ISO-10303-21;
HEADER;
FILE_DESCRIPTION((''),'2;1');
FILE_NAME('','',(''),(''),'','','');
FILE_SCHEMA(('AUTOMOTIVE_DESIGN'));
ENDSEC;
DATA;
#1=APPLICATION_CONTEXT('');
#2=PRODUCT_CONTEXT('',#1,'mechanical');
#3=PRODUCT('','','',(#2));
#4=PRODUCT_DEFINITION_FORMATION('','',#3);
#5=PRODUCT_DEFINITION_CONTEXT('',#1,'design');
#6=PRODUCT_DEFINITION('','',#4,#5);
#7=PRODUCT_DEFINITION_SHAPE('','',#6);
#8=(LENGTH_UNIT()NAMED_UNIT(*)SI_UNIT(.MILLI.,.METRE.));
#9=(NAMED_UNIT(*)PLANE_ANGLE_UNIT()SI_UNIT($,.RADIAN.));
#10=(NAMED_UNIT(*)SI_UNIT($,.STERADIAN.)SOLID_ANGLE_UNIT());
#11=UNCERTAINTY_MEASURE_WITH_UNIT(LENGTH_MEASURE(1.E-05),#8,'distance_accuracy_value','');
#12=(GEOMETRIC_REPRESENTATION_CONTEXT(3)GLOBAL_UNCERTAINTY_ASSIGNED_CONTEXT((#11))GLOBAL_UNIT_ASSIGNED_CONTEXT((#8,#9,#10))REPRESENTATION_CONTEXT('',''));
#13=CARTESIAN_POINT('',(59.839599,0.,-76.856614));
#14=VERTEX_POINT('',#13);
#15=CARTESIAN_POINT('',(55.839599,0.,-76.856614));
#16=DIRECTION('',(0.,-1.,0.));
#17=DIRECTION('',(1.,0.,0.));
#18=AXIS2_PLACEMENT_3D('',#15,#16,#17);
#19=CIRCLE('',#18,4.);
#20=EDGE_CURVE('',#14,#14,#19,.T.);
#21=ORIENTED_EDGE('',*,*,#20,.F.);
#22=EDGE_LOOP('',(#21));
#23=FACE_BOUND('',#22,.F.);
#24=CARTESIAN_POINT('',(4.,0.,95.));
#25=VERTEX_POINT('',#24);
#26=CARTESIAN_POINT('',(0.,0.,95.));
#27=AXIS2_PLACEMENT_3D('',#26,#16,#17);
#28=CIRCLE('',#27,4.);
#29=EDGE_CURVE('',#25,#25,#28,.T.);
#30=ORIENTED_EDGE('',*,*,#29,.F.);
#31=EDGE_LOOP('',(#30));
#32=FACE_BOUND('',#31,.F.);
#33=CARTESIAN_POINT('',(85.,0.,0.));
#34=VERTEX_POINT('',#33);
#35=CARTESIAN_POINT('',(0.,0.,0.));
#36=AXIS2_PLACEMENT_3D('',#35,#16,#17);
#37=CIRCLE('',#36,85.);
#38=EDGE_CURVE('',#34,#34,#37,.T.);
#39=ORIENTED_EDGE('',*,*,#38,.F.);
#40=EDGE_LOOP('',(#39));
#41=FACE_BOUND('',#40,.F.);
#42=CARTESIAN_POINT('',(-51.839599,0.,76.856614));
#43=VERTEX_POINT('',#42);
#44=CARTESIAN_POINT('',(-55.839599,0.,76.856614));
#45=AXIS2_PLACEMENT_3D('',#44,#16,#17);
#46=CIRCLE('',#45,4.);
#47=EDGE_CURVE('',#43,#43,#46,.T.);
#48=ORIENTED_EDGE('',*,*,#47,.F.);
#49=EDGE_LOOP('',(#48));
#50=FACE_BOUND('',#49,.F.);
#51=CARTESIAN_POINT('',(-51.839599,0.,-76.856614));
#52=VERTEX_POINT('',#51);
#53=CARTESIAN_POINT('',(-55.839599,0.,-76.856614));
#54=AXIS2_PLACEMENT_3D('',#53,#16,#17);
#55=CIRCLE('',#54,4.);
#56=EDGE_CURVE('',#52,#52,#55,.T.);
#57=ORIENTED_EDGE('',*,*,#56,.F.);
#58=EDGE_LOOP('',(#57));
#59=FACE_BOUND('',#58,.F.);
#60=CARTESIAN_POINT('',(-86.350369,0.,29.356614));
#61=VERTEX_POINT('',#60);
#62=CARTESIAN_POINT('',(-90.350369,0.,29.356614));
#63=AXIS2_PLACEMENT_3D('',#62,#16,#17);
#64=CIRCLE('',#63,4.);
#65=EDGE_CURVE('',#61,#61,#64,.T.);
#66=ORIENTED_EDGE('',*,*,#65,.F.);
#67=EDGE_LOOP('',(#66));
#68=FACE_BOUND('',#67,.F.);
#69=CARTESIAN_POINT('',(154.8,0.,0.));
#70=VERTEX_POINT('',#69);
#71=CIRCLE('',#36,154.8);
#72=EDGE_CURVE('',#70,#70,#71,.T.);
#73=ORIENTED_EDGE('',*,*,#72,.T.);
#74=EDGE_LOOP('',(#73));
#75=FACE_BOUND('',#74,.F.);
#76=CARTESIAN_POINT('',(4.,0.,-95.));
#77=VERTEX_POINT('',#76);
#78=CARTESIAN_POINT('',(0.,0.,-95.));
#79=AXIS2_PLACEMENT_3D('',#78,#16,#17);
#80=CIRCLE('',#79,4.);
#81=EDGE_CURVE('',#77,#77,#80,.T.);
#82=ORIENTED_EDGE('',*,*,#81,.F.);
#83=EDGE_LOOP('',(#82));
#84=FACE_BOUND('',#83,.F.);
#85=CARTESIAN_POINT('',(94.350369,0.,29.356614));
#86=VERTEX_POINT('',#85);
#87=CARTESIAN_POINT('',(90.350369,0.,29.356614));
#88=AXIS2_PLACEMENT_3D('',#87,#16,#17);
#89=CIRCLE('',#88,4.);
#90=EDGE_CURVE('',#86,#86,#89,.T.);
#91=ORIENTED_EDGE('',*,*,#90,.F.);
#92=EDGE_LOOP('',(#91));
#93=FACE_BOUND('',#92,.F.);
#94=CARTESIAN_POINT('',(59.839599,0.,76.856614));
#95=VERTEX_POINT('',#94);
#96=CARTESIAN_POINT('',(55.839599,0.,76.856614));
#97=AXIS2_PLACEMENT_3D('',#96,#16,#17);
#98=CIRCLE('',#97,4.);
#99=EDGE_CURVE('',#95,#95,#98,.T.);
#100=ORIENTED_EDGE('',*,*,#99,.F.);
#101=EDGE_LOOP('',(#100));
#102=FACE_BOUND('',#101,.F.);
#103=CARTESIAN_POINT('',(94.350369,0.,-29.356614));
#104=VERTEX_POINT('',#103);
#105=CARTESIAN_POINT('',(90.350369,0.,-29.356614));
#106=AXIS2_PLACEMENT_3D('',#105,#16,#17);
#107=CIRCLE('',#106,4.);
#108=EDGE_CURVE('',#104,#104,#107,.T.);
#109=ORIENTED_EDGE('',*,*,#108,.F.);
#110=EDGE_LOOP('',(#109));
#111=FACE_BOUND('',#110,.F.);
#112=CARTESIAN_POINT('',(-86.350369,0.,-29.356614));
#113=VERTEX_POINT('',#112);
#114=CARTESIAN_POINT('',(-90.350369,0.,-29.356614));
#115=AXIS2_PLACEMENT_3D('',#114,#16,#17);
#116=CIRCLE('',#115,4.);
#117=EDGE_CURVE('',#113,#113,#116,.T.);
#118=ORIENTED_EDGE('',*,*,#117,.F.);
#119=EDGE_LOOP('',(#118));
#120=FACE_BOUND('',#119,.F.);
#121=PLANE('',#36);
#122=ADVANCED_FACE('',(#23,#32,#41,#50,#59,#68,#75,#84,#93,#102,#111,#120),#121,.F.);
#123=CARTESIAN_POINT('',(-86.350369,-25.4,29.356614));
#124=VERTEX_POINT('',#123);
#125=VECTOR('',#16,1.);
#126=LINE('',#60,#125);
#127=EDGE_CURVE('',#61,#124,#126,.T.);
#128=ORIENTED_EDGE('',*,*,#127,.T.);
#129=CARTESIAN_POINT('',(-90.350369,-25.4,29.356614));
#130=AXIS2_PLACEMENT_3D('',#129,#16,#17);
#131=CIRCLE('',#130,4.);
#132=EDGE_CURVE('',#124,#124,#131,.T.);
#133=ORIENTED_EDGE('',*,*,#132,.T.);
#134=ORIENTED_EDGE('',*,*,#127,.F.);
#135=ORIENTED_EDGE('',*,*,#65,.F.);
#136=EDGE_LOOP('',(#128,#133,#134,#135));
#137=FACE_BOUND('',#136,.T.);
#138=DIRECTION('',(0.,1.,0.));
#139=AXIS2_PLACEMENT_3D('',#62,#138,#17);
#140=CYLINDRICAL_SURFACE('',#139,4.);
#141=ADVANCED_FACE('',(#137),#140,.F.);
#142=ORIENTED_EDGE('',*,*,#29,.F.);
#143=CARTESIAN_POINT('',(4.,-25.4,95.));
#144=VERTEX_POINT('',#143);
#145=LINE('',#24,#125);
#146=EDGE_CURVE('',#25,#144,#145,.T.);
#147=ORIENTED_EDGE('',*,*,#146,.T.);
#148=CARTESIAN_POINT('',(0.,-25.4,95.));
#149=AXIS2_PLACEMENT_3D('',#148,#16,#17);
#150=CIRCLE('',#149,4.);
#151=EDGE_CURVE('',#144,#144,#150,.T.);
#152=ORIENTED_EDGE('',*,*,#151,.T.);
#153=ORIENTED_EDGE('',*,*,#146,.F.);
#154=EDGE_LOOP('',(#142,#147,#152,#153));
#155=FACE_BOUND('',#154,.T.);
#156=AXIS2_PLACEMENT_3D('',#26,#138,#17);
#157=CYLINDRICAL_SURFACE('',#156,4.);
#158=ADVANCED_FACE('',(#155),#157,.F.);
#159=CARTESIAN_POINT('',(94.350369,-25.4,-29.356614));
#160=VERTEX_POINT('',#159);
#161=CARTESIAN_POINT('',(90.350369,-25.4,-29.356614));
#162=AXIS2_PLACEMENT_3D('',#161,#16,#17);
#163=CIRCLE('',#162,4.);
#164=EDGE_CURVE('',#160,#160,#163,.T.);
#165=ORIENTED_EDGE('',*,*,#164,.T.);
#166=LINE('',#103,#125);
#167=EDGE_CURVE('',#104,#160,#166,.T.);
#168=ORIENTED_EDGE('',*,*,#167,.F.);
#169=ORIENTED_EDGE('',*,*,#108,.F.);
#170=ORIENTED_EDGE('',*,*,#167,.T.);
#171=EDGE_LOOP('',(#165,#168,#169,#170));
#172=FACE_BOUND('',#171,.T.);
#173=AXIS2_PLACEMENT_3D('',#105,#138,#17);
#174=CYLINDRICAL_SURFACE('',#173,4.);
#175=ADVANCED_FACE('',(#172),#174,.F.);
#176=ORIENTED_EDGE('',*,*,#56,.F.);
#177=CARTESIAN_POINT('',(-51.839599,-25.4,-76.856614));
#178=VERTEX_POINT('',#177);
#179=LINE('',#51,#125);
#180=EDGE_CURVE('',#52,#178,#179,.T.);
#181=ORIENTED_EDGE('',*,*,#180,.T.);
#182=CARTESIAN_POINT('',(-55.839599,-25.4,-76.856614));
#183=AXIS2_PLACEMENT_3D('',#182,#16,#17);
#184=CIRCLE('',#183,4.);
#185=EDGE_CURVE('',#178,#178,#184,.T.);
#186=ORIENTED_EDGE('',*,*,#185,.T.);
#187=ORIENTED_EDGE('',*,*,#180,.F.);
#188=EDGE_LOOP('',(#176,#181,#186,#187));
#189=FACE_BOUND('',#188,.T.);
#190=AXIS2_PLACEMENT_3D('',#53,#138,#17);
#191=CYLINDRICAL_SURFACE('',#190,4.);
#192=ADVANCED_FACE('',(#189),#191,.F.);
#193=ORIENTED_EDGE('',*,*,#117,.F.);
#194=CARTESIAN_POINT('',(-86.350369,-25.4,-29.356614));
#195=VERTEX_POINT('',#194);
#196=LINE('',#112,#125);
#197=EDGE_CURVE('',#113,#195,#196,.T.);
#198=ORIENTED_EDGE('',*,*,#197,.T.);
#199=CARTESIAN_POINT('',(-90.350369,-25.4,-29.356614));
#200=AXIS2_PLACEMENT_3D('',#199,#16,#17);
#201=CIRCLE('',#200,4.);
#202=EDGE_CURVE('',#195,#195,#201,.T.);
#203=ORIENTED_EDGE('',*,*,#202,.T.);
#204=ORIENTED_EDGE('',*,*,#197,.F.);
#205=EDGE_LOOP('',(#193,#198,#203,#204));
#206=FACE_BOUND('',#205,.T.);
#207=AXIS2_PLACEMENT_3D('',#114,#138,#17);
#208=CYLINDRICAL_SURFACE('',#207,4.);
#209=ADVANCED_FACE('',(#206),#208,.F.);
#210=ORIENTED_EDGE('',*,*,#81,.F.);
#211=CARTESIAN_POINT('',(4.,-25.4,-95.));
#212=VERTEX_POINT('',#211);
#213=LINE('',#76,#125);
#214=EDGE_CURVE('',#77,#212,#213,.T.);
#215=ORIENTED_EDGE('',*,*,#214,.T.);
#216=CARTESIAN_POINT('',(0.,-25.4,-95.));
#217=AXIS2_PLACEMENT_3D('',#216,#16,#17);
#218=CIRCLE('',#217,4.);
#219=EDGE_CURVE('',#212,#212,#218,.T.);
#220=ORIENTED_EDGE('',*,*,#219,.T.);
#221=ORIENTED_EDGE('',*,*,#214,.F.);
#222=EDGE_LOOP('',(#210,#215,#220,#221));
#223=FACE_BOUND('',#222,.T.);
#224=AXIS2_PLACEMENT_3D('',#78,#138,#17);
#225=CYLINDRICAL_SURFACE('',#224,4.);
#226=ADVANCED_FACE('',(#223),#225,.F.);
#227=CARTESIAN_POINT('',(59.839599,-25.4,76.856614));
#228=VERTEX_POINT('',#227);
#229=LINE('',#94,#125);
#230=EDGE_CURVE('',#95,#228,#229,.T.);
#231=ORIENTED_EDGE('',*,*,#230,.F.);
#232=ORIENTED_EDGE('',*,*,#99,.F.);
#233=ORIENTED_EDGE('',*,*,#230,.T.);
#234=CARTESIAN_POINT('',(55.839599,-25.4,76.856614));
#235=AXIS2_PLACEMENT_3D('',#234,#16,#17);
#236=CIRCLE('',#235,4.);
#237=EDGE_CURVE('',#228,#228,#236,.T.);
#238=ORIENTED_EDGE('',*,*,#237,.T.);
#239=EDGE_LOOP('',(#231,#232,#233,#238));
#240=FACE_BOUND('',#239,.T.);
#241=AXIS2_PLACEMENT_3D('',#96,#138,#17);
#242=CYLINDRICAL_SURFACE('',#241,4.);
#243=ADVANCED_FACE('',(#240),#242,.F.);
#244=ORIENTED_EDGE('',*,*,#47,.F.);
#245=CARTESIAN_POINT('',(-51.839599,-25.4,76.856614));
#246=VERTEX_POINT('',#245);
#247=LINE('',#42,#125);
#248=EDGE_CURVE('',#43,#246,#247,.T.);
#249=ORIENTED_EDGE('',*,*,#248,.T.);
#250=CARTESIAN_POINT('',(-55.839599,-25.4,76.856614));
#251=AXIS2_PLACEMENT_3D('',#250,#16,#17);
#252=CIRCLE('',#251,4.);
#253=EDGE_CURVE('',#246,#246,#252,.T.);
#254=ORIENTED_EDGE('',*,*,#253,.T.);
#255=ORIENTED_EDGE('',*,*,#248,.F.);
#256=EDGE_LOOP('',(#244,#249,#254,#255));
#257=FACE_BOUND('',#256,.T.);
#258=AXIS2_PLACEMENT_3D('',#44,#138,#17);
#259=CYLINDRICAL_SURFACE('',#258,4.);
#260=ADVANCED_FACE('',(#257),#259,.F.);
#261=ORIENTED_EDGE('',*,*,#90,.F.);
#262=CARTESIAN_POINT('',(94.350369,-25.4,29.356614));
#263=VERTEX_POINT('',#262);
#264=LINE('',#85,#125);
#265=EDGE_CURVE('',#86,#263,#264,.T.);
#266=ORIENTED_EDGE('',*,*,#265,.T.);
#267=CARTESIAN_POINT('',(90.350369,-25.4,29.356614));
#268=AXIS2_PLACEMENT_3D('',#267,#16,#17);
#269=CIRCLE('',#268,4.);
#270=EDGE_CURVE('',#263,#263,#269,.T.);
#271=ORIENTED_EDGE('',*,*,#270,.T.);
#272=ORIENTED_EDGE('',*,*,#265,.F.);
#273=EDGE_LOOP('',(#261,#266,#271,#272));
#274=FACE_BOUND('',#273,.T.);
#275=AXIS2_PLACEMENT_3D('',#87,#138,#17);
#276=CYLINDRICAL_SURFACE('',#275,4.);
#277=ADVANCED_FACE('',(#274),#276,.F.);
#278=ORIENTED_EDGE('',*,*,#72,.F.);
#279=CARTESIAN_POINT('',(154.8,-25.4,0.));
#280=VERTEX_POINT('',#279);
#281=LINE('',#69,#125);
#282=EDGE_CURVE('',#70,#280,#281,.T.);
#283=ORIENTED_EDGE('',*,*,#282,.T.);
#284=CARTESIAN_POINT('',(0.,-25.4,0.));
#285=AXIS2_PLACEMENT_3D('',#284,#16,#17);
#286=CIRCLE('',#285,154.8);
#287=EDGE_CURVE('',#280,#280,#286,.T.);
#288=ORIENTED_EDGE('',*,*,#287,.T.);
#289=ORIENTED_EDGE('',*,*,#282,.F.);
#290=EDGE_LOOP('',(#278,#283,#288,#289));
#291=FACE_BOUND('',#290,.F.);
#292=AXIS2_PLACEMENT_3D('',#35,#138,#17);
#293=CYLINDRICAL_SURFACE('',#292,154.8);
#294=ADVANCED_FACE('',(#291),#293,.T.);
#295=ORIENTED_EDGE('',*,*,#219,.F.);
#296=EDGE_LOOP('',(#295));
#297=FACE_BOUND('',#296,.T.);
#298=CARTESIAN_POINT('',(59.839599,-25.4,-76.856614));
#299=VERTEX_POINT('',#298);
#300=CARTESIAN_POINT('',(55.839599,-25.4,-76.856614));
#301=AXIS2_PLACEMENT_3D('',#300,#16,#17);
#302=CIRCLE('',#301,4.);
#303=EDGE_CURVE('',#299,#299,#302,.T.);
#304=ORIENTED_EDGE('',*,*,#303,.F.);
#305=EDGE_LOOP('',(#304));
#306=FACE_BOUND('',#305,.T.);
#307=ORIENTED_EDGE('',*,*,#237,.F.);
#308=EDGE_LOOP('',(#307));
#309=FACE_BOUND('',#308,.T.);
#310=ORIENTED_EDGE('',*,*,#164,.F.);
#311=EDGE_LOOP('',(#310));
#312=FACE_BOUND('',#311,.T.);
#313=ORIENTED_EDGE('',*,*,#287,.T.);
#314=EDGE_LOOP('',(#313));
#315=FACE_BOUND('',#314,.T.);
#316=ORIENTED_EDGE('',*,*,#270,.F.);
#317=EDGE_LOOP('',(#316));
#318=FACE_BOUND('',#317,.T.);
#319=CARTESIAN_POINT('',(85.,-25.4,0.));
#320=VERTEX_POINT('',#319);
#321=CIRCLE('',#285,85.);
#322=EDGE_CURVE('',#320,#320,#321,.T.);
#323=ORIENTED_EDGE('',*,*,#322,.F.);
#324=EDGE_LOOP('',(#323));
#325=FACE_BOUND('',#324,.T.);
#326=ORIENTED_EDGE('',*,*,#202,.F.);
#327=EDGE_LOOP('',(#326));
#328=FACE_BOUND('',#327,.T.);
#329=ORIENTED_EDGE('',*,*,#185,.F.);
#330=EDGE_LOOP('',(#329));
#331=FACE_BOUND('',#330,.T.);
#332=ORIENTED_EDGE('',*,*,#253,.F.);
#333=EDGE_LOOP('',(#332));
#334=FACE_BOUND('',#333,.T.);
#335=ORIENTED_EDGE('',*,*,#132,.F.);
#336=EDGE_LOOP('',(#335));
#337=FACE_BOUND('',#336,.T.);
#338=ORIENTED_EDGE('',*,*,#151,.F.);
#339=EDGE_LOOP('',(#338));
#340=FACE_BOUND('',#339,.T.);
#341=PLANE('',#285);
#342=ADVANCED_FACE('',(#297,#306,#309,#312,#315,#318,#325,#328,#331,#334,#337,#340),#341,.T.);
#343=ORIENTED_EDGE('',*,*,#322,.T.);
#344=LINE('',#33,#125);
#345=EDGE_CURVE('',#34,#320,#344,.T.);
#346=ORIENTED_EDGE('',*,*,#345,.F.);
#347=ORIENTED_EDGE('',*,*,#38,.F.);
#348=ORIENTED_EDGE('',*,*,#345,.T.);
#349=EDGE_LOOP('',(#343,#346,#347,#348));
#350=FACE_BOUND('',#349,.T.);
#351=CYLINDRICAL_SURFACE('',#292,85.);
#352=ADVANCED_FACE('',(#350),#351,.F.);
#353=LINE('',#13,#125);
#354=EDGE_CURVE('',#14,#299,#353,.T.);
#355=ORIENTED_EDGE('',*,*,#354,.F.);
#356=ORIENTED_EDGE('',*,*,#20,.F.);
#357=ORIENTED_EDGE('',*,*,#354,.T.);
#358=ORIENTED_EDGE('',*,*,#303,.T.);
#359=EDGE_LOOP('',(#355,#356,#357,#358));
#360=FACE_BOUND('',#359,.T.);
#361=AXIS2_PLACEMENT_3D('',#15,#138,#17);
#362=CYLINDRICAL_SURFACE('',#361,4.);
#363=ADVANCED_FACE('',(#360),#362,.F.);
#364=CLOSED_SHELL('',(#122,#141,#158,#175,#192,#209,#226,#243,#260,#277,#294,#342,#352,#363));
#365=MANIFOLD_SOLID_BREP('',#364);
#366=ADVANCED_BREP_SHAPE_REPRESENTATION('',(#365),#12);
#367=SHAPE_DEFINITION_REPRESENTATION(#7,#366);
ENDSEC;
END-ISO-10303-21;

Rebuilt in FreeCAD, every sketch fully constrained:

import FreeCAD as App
import Part
import Sketcher
from FreeCAD import Vector

doc = App.newDocument("Part")
body = doc.addObject("PartDesign::Body", "Body")

# Sketch on XZ plane
sketch1 = body.newObject("Sketcher::SketchObject", "Sketch")
sketch1.AttachmentSupport = (doc.getObject("XZ_Plane"), [""])
sketch1.MapMode = "FlatFace"
sketch1.addGeometry([
    Part.Circle(Vector(0, 0, 0), Vector(0, 0, 1), 154.8),  # 0
    Part.Circle(Vector(-55.8, -76.9, 0), Vector(0, 0, 1), 4),  # 1
    Part.Circle(Vector(-90.4, -29.4, 0), Vector(0, 0, 1), 4),  # 2
    Part.Circle(Vector(0, -95, 0), Vector(0, 0, 1), 4),  # 3
    Part.Circle(Vector(55.8, -76.9, 0), Vector(0, 0, 1), 4),  # 4
    Part.Circle(Vector(90.4, -29.4, 0), Vector(0, 0, 1), 4),  # 5
    Part.Circle(Vector(-90.4, 29.4, 0), Vector(0, 0, 1), 4),  # 6
    Part.Circle(Vector(-55.8, 76.9, 0), Vector(0, 0, 1), 4),  # 7
    Part.Circle(Vector(0, 0, 0), Vector(0, 0, 1), 85),  # 8
    Part.Circle(Vector(90.4, 29.4, 0), Vector(0, 0, 1), 4),  # 9
    Part.Circle(Vector(0, 95, 0), Vector(0, 0, 1), 4),  # 10
    Part.Circle(Vector(55.8, 76.9, 0), Vector(0, 0, 1), 4),  # 11
], False)
sketch1.addConstraint([
    Sketcher.Constraint("Coincident", 0, 3, -1, 1),
    Sketcher.Constraint("Coincident", 8, 3, -1, 1),
    Sketcher.Constraint("Equal", 1, 2),
    Sketcher.Constraint("Equal", 2, 3),
    Sketcher.Constraint("Equal", 3, 4),
    Sketcher.Constraint("Equal", 4, 5),
    Sketcher.Constraint("Equal", 5, 6),
    Sketcher.Constraint("Equal", 6, 7),
    Sketcher.Constraint("Equal", 7, 9),
    Sketcher.Constraint("Equal", 9, 10),
    Sketcher.Constraint("Equal", 10, 11),
    Sketcher.Constraint("Symmetric", 5, 3, 6, 3, -1, 1),
    Sketcher.Constraint("Symmetric", 4, 3, 7, 3, -1, 1),
    Sketcher.Constraint("Symmetric", 2, 3, 9, 3, -1, 1),
    Sketcher.Constraint("Symmetric", 3, 3, 10, 3, -1, 1),
    Sketcher.Constraint("Symmetric", 1, 3, 11, 3, -1, 1),
    Sketcher.Constraint("Symmetric", 1, 3, 4, 3, -2),
    Sketcher.Constraint("Symmetric", 2, 3, 5, 3, -2),
    Sketcher.Constraint("PointOnObject", 3, 3, -2),
    Sketcher.Constraint("Diameter", 1, 8.0),
    Sketcher.Constraint("Diameter", 8, 170.0),
    Sketcher.Constraint("Diameter", 0, 309.6),
    Sketcher.Constraint("DistanceY", 3, 3, -1, 1, 95.0),
    Sketcher.Constraint("DistanceY", 1, 3, 2, 3, 47.5),
    Sketcher.Constraint("DistanceX", 1, 3, -1, 1, 55.839599),
    Sketcher.Constraint("DistanceX", 2, 3, -1, 1, 90.350369),
    Sketcher.Constraint("DistanceY", 1, 3, -1, 1, 76.856614),
])
pad1 = body.newObject("PartDesign::Pad", "Pad")
pad1.Profile = sketch1
pad1.Length = 25.4

doc.recompute()
